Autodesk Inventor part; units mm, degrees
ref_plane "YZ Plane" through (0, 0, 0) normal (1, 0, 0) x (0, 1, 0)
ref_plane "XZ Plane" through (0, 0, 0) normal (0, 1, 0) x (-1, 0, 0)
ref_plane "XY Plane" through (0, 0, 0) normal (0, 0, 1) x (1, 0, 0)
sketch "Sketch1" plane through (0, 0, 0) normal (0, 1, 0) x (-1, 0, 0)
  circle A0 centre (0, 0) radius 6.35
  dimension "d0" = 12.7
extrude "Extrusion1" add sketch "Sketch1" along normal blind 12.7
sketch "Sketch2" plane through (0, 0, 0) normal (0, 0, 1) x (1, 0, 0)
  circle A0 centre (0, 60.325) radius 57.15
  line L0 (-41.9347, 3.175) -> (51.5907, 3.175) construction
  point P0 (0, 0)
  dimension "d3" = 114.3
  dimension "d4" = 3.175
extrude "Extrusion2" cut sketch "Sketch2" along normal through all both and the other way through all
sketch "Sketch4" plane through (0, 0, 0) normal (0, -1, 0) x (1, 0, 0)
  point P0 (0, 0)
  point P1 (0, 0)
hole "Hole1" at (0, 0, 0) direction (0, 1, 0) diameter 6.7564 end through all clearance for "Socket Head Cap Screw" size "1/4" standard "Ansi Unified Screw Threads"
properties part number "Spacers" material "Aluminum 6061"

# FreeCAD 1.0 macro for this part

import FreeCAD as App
import Part
import Sketcher
Q = App.Units.Quantity

doc = App.newDocument("Part")
params = doc.addObject("Spreadsheet::Sheet", "Params")
for row, (alias, value) in enumerate([
    ("sketch1_diameter", "0.5 in"),
    ("pad1_length", "0.5 in"),
    ("sketch2_diameter", "4.5 in"),
    ("sketch3_diameter", "0.266 in"),
    ("hole_diameter", "0.266 in"),
], start=1):
    params.set(f"A{row}", alias)
    params.set(f"B{row}", "=" + value)
    params.setAlias(f"B{row}", alias)

body = doc.addObject("PartDesign::Body", "Body")

# Sketch on XZ plane
sketch1 = body.newObject("Sketcher::SketchObject", "Sketch")
sketch1.AttachmentSupport = (doc.getObject("XZ_Plane"), [""])
sketch1.MapMode = "FlatFace"
sketch1.addGeometry(Part.Circle(App.Vector(0, 0, 0), App.Vector(0, 0, 1), 6), False)
sketch1.addConstraint([
    Sketcher.Constraint("Coincident", 0, 3, -1, 1),
    Sketcher.Constraint("Diameter", 0, Q("0.5 in")),
])
sketch1.setExpression("Constraints[1]", "Params.sketch1_diameter")
pad1 = body.newObject("PartDesign::Pad", "Pad")
pad1.Profile = sketch1
pad1.setExpression("Length", "Params.pad1_length")
pad1.Reversed = True

# Sketch on XY plane
sketch2 = body.newObject("Sketcher::SketchObject", "Sketch001")
sketch2.AttachmentSupport = (doc.getObject("XY_Plane"), [""])
sketch2.MapMode = "FlatFace"
sketch2.addGeometry(Part.Circle(App.Vector(0, 60, 0), App.Vector(0, 0, 1), 57), False)
sketch2.addConstraint([
    Sketcher.Constraint("PointOnObject", 0, 3, -2),
    Sketcher.Constraint("Diameter", 0, Q("4.5 in")),
    Sketcher.Constraint("DistanceY", -1, 1, 0, 3, Q("2.375 in")),
])
sketch2.setExpression("Constraints[1]", "Params.sketch2_diameter")
pocket1 = body.newObject("PartDesign::Pocket", "Pocket")
pocket1.Profile = sketch2
pocket1.Type = "ThroughAll"
pocket1.Midplane = True

# Sketch on XZ plane
sketch3 = body.newObject("Sketcher::SketchObject", "Sketch002")
sketch3.AttachmentSupport = (doc.getObject("XZ_Plane"), [""])
sketch3.MapMode = "FlatFace"
sketch3.addGeometry(Part.Circle(App.Vector(0, 0, 0), App.Vector(0, 0, 1), 3.4), False)
sketch3.addConstraint([
    Sketcher.Constraint("Coincident", 0, 3, -1, 1),
    Sketcher.Constraint("Diameter", 0, Q("0.266 in")),
])
sketch3.setExpression("Constraints[1]", "Params.sketch3_diameter")
doc.recompute()
hole = body.newObject("PartDesign::Hole", "Hole")
hole.Profile = sketch3
hole.ThreadType = "None"
hole.setExpression("Diameter", "Params.hole_diameter")
hole.DepthType = "ThroughAll"

doc.recompute()
